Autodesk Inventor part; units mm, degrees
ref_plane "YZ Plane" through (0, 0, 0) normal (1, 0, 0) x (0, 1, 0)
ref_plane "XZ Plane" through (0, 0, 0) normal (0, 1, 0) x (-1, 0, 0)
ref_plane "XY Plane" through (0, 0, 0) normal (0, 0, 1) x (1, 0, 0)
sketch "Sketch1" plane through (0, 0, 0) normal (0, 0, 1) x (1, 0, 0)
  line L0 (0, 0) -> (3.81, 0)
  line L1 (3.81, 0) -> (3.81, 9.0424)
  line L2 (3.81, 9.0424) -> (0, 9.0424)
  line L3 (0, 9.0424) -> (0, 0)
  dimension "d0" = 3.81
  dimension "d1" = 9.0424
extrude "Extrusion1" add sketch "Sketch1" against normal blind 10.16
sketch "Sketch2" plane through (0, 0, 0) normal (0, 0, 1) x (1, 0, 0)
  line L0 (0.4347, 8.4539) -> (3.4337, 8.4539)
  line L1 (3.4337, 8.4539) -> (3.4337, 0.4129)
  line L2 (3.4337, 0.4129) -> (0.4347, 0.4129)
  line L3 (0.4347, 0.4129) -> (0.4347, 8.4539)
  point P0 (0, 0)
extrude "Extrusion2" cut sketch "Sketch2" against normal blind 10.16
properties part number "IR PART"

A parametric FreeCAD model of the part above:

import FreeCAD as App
import Part
import Sketcher

V = App.Vector
Q = App.Units.Quantity


def add_polygon(sketch, points):
    """Adds a closed chain of lines whose ends are joined by coincident constraints."""
    first, n = sketch.GeometryCount, len(points)
    for a, b in zip(points, points[1:] + points[:1]):
        sketch.addGeometry(Part.LineSegment(App.Vector(*a, 0), App.Vector(*b, 0)), False)
    for i in range(n):
        sketch.addConstraint(Sketcher.Constraint("Coincident", first + i, 2, first + (i + 1) % n, 1))

doc = App.newDocument("Part")
body = doc.addObject("PartDesign::Body", "Body")

# Sketch on XY plane
sketch1 = doc.addObject("Sketcher::SketchObject", "Sketch")
body.addObject(sketch1)
sketch1.AttachmentSupport = (doc.XY_Plane, [""])
sketch1.MapMode = "FlatFace"
add_polygon(sketch1, [(0, 9.0424), (0, 0), (3.81, 0), (3.81, 9.0424)])  # lines 0-3
sketch1.addConstraint([
    Sketcher.Constraint("Vertical", 0),
    Sketcher.Constraint("Horizontal", 1),
    Sketcher.Constraint("Vertical", 2),
    Sketcher.Constraint("Horizontal", 3),
    Sketcher.Constraint("Coincident", 0, 2, -1, 1),
    Sketcher.Constraint("DistanceX", 1, 1, 1, 2, Q("0.15 in")),
    Sketcher.Constraint("DistanceY", 0, 2, 0, 1, Q("0.356 in")),
])
pad1 = doc.addObject("PartDesign::Pad", "Pad")
body.addObject(pad1)
pad1.Profile = sketch1
pad1.Length = Q("0.4 in")
pad1.Reversed = True

# Sketch on XY plane
sketch2 = doc.addObject("Sketcher::SketchObject", "Sketch001")
body.addObject(sketch2)
sketch2.AttachmentSupport = (doc.XY_Plane, [""])
sketch2.MapMode = "FlatFace"
add_polygon(sketch2, [(3.4337, 8.4539), (0.4347, 8.4539), (0.4347, 0.4129), (3.4337, 0.4129)])  # lines 0-3
sketch2.addConstraint([
    Sketcher.Constraint("Horizontal", 0),
    Sketcher.Constraint("Vertical", 1),
    Sketcher.Constraint("Horizontal", 2),
    Sketcher.Constraint("Vertical", 3),
    Sketcher.Constraint("DistanceX", 0, 2, 0, 1, 2.999),
    Sketcher.Constraint("DistanceY", 1, 2, 1, 1, 8.041),
    Sketcher.Constraint("DistanceX", -1, 1, 0, 2, 0.4347),
    Sketcher.Constraint("DistanceY", -1, 1, 0, 2, 8.454),
])
pocket1 = doc.addObject("PartDesign::Pocket", "Pocket")
body.addObject(pocket1)
pocket1.Profile = sketch2
pocket1.Length = Q("0.4 in")

doc.recompute()
